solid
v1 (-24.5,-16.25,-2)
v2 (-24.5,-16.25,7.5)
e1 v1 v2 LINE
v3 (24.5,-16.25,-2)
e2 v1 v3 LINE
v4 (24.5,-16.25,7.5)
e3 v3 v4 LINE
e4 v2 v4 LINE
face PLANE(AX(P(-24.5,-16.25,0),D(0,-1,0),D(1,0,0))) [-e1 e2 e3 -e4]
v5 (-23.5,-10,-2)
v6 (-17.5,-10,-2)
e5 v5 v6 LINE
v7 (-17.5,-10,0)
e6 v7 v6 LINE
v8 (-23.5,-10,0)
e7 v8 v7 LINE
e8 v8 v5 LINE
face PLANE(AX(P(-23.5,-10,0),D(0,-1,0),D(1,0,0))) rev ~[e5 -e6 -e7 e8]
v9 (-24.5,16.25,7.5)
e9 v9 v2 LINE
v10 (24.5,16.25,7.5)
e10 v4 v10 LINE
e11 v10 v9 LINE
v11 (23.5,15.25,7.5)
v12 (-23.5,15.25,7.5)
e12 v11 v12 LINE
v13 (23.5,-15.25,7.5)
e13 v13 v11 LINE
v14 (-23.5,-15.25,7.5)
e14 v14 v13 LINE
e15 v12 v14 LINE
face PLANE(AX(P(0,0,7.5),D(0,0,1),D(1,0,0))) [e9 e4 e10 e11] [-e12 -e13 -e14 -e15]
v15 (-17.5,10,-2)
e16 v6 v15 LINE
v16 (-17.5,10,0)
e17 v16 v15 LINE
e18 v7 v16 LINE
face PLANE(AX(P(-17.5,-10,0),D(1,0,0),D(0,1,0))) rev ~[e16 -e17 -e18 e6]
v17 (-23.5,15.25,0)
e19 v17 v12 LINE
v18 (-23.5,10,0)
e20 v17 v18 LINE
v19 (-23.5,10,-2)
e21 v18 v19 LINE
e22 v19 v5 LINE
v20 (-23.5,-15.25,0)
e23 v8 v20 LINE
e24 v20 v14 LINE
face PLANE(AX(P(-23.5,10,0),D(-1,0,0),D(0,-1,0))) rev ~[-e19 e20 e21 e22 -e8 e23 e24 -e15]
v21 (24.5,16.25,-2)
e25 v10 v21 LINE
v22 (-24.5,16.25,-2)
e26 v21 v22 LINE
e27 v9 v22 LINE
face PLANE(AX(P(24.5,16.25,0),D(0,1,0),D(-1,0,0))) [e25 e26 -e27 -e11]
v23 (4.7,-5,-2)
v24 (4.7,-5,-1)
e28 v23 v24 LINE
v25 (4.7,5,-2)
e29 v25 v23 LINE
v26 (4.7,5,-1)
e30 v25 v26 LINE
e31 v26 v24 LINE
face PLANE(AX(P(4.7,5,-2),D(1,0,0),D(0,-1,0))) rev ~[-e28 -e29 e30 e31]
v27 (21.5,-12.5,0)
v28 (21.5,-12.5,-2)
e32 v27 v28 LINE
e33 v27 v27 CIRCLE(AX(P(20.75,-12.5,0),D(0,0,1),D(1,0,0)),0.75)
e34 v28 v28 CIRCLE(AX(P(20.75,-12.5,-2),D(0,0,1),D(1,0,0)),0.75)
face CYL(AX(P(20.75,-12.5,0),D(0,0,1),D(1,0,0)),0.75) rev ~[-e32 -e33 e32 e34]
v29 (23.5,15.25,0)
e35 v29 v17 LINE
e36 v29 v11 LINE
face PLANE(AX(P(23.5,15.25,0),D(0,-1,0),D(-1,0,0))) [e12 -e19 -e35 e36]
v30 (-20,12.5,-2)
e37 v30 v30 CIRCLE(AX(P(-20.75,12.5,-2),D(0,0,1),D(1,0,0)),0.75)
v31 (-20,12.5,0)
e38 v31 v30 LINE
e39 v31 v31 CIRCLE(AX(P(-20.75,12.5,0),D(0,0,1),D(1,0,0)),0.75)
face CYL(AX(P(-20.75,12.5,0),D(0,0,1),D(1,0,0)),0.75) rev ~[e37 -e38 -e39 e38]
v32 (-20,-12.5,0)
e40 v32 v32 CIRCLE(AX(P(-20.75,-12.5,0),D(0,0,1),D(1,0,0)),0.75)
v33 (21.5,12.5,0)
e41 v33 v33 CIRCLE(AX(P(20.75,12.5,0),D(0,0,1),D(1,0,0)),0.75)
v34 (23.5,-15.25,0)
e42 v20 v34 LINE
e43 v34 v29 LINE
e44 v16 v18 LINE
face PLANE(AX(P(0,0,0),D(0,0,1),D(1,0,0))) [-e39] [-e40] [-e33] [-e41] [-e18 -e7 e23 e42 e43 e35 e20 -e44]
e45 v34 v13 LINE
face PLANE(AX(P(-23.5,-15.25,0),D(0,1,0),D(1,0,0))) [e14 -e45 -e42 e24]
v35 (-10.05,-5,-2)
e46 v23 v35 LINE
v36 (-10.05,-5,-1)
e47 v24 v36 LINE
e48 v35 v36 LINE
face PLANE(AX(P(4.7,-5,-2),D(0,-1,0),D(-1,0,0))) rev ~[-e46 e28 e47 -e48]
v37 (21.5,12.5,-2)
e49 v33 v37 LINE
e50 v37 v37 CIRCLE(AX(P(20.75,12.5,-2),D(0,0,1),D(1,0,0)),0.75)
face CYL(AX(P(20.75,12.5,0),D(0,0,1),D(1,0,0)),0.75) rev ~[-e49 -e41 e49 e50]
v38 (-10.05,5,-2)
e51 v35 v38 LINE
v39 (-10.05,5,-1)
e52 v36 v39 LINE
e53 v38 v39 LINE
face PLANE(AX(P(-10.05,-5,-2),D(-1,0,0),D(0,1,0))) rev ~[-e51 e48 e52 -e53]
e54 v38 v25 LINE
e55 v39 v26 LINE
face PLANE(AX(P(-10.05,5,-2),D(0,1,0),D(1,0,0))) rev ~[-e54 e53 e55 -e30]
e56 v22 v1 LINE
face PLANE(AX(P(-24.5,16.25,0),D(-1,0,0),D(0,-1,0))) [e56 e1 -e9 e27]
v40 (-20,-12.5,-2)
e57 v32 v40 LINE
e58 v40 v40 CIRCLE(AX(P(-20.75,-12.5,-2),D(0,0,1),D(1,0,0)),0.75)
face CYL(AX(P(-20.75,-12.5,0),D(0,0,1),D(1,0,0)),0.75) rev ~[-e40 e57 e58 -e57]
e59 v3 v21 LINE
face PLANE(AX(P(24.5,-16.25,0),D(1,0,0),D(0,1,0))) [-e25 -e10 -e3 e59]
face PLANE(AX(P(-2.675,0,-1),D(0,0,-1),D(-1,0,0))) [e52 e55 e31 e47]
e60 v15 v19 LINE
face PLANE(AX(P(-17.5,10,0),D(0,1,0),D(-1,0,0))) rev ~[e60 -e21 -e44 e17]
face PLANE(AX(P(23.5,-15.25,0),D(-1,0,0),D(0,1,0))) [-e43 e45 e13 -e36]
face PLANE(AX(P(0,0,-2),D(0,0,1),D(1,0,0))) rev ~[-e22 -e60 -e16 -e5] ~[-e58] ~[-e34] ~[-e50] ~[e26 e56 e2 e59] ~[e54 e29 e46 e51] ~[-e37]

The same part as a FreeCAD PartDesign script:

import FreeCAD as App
import Part
import Sketcher
from FreeCAD import Vector


def add_polygon(sketch, points):
    """Adds a closed chain of lines whose ends are joined by coincident constraints."""
    first, n = sketch.GeometryCount, len(points)
    for a, b in zip(points, points[1:] + points[:1]):
        sketch.addGeometry(Part.LineSegment(App.Vector(*a, 0), App.Vector(*b, 0)), False)
    for i in range(n):
        sketch.addConstraint(Sketcher.Constraint("Coincident", first + i, 2, first + (i + 1) % n, 1))

doc = App.newDocument("Part")
body = doc.addObject("PartDesign::Body", "Body")

# Sketch on XY plane
sketch1 = body.newObject("Sketcher::SketchObject", "Sketch")
sketch1.AttachmentSupport = (doc.getObject("XY_Plane"), [""])
sketch1.MapMode = "FlatFace"
add_polygon(sketch1, [(24, 16), (-24, 16), (-24, -16), (24, -16)])  # lines 0-3
sketch1.addConstraint([
    Sketcher.Constraint("Horizontal", 0),
    Sketcher.Constraint("Vertical", 1),
    Sketcher.Constraint("Horizontal", 2),
    Sketcher.Constraint("Vertical", 3),
    Sketcher.Constraint("Symmetric", 0, 2, 2, 2, -1, 1),
    Sketcher.Constraint("DistanceX", 0, 2, 0, 1, 49.0),
    Sketcher.Constraint("DistanceY", 1, 2, 1, 1, 32.5),
])
pad1 = body.newObject("PartDesign::Pad", "Pad")
pad1.Profile = sketch1
pad1.Length = 2
pad1.Reversed = True

# Sketch on XY plane
sketch2 = body.newObject("Sketcher::SketchObject", "Sketch001")
sketch2.AttachmentSupport = (doc.getObject("XY_Plane"), [""])
sketch2.MapMode = "FlatFace"
add_polygon(sketch2, [(24, 16), (-24, 16), (-24, -16), (24, -16)])  # lines 0-3
add_polygon(sketch2, [(-24, -15), (-24, 15), (24, 15), (24, -15)])  # lines 4-7
sketch2.addConstraint([
    Sketcher.Constraint("Horizontal", 0),
    Sketcher.Constraint("Vertical", 1),
    Sketcher.Constraint("Horizontal", 2),
    Sketcher.Constraint("Vertical", 3),
    Sketcher.Constraint("Vertical", 4),
    Sketcher.Constraint("Horizontal", 5),
    Sketcher.Constraint("Vertical", 6),
    Sketcher.Constraint("Horizontal", 7),
    Sketcher.Constraint("Symmetric", 0, 2, 2, 2, -1, 1),
    Sketcher.Constraint("Symmetric", 4, 2, 6, 2, -1, 1),
    Sketcher.Constraint("DistanceX", 0, 2, 0, 1, 49.0),
    Sketcher.Constraint("DistanceX", 5, 1, 5, 2, 47.0),
    Sketcher.Constraint("DistanceY", 1, 2, 1, 1, 32.5),
    Sketcher.Constraint("DistanceY", 4, 1, 4, 2, 30.5),
])
pad2 = body.newObject("PartDesign::Pad", "Pad001")
pad2.Profile = sketch2
pad2.Length = 7.5

# Sketch on XY plane
sketch3 = body.newObject("Sketcher::SketchObject", "Sketch002")
sketch3.AttachmentSupport = (doc.getObject("XY_Plane"), [""])
sketch3.MapMode = "FlatFace"
add_polygon(sketch3, [(-24, -10), (-18, -10), (-18, 10), (-24, 10)])  # lines 0-3
sketch3.addConstraint([
    Sketcher.Constraint("Horizontal", 0),
    Sketcher.Constraint("Vertical", 1),
    Sketcher.Constraint("Horizontal", 2),
    Sketcher.Constraint("Vertical", 3),
    Sketcher.Constraint("DistanceX", 0, 1, 0, 2, 6.0),
    Sketcher.Constraint("DistanceY", 1, 1, 1, 2, 20.0),
    Sketcher.Constraint("DistanceY", 0, 2, -1, 1, 10.0),
    Sketcher.Constraint("DistanceX", 0, 2, -1, 1, 17.5),
])
pocket1 = body.newObject("PartDesign::Pocket", "Pocket")
pocket1.Profile = sketch3
pocket1.Length = 2

# Sketch on XY plane
sketch4 = body.newObject("Sketcher::SketchObject", "Sketch003")
sketch4.AttachmentSupport = (doc.getObject("XY_Plane"), [""])
sketch4.MapMode = "FlatFace"
sketch4.addGeometry([
    Part.Circle(Vector(-20.8, 12.5, 0), Vector(0, 0, 1), 0.8),
    Part.Circle(Vector(-20.8, -12.5, 0), Vector(0, 0, 1), 0.8),
    Part.Circle(Vector(20.8, -12.5, 0), Vector(0, 0, 1), 0.8),
    Part.Circle(Vector(20.8, 12.5, 0), Vector(0, 0, 1), 0.8),
], False)
sketch4.addConstraint([
    Sketcher.Constraint("Equal", 0, 1),
    Sketcher.Constraint("Equal", 1, 2),
    Sketcher.Constraint("Equal", 2, 3),
    Sketcher.Constraint("Symmetric", 0, 3, 2, 3, -1, 1),
    Sketcher.Constraint("Symmetric", 1, 3, 3, 3, -1, 1),
    Sketcher.Constraint("Symmetric", 1, 3, 2, 3, -2),
    Sketcher.Constraint("Diameter", 0, 1.5),
    Sketcher.Constraint("DistanceY", 1, 3, 0, 3, 25.0),
    Sketcher.Constraint("DistanceX", 1, 3, 2, 3, 41.5),
])
pocket2 = body.newObject("PartDesign::Pocket", "Pocket001")
pocket2.Profile = sketch4
pocket2.Length = 2

# Sketch on XY plane
sketch5 = body.newObject("Sketcher::SketchObject", "Sketch004")
sketch5.AttachmentSupport = (doc.getObject("XY_Plane"), [""])
sketch5.MapMode = "FlatFace"
sketch5.AttachmentOffset = App.Placement(Vector(0, 0, -2), App.Rotation())
add_polygon(sketch5, [(5, -6), (-10, -6), (-10, 4), (5, 4)])  # lines 0-3
sketch5.addConstraint([
    Sketcher.Constraint("Horizontal", 0),
    Sketcher.Constraint("Vertical", 1),
    Sketcher.Constraint("Horizontal", 2),
    Sketcher.Constraint("Vertical", 3),
    Sketcher.Constraint("DistanceY", 1, 1, 1, 2, 10.0),
    Sketcher.Constraint("DistanceX", 0, 2, 0, 1, 14.75),
    Sketcher.Constraint("DistanceY", 0, 2, -1, 1, 5.5),
    Sketcher.Constraint("DistanceX", -1, 1, 2, 2, 4.7),
])
pocket3 = body.newObject("PartDesign::Pocket", "Pocket002")
pocket3.Profile = sketch5
pocket3.Length = 1
pocket3.Reversed = True

# Sketch on XY plane
sketch6 = body.newObject("Sketcher::SketchObject", "Sketch005")
sketch6.AttachmentSupport = (doc.getObject("XY_Plane"), [""])
sketch6.MapMode = "FlatFace"
sketch6.AttachmentOffset = App.Placement(Vector(0, 0, -2), App.Rotation())
add_polygon(sketch6, [(5, 4), (5, -6), (-10, -6), (-10, 4)])  # lines 0-3
sketch6.addConstraint([
    Sketcher.Constraint("Vertical", 0),
    Sketcher.Constraint("Horizontal", 1),
    Sketcher.Constraint("Vertical", 2),
    Sketcher.Constraint("Horizontal", 3),
    Sketcher.Constraint("DistanceY", 0, 2, 0, 1, 10.0),
    Sketcher.Constraint("DistanceX", 1, 2, 1, 1, 14.75),
    Sketcher.Constraint("DistanceX", -1, 1, 0, 2, 4.7),
    Sketcher.Constraint("DistanceY", 0, 2, -1, 1, 5.5),
])
pad3 = body.newObject("PartDesign::Pad", "Pad002")
pad3.Profile = sketch6
pad3.Length = 1

# Sketch on XY plane
sketch7 = body.newObject("Sketcher::SketchObject", "Sketch006")
sketch7.AttachmentSupport = (doc.getObject("XY_Plane"), [""])
sketch7.MapMode = "FlatFace"
sketch7.AttachmentOffset = App.Placement(Vector(0, 0, -2), App.Rotation())
add_polygon(sketch7, [(-10, -5), (-10, 5), (5, 5), (5, -5)])  # lines 0-3
sketch7.addConstraint([
    Sketcher.Constraint("Vertical", 0),
    Sketcher.Constraint("Horizontal", 1),
    Sketcher.Constraint("Vertical", 2),
    Sketcher.Constraint("Horizontal", 3),
    Sketcher.Constraint("DistanceY", 0, 1, 0, 2, 10.0),
    Sketcher.Constraint("DistanceY", -1, 1, 0, 2, 5.0),
    Sketcher.Constraint("DistanceX", 1, 1, 1, 2, 14.75),
    Sketcher.Constraint("DistanceX", -1, 1, 1, 2, 4.7),
])
pocket4 = body.newObject("PartDesign::Pocket", "Pocket003")
pocket4.Profile = sketch7
pocket4.Length = 1
pocket4.Reversed = True

doc.recompute()
